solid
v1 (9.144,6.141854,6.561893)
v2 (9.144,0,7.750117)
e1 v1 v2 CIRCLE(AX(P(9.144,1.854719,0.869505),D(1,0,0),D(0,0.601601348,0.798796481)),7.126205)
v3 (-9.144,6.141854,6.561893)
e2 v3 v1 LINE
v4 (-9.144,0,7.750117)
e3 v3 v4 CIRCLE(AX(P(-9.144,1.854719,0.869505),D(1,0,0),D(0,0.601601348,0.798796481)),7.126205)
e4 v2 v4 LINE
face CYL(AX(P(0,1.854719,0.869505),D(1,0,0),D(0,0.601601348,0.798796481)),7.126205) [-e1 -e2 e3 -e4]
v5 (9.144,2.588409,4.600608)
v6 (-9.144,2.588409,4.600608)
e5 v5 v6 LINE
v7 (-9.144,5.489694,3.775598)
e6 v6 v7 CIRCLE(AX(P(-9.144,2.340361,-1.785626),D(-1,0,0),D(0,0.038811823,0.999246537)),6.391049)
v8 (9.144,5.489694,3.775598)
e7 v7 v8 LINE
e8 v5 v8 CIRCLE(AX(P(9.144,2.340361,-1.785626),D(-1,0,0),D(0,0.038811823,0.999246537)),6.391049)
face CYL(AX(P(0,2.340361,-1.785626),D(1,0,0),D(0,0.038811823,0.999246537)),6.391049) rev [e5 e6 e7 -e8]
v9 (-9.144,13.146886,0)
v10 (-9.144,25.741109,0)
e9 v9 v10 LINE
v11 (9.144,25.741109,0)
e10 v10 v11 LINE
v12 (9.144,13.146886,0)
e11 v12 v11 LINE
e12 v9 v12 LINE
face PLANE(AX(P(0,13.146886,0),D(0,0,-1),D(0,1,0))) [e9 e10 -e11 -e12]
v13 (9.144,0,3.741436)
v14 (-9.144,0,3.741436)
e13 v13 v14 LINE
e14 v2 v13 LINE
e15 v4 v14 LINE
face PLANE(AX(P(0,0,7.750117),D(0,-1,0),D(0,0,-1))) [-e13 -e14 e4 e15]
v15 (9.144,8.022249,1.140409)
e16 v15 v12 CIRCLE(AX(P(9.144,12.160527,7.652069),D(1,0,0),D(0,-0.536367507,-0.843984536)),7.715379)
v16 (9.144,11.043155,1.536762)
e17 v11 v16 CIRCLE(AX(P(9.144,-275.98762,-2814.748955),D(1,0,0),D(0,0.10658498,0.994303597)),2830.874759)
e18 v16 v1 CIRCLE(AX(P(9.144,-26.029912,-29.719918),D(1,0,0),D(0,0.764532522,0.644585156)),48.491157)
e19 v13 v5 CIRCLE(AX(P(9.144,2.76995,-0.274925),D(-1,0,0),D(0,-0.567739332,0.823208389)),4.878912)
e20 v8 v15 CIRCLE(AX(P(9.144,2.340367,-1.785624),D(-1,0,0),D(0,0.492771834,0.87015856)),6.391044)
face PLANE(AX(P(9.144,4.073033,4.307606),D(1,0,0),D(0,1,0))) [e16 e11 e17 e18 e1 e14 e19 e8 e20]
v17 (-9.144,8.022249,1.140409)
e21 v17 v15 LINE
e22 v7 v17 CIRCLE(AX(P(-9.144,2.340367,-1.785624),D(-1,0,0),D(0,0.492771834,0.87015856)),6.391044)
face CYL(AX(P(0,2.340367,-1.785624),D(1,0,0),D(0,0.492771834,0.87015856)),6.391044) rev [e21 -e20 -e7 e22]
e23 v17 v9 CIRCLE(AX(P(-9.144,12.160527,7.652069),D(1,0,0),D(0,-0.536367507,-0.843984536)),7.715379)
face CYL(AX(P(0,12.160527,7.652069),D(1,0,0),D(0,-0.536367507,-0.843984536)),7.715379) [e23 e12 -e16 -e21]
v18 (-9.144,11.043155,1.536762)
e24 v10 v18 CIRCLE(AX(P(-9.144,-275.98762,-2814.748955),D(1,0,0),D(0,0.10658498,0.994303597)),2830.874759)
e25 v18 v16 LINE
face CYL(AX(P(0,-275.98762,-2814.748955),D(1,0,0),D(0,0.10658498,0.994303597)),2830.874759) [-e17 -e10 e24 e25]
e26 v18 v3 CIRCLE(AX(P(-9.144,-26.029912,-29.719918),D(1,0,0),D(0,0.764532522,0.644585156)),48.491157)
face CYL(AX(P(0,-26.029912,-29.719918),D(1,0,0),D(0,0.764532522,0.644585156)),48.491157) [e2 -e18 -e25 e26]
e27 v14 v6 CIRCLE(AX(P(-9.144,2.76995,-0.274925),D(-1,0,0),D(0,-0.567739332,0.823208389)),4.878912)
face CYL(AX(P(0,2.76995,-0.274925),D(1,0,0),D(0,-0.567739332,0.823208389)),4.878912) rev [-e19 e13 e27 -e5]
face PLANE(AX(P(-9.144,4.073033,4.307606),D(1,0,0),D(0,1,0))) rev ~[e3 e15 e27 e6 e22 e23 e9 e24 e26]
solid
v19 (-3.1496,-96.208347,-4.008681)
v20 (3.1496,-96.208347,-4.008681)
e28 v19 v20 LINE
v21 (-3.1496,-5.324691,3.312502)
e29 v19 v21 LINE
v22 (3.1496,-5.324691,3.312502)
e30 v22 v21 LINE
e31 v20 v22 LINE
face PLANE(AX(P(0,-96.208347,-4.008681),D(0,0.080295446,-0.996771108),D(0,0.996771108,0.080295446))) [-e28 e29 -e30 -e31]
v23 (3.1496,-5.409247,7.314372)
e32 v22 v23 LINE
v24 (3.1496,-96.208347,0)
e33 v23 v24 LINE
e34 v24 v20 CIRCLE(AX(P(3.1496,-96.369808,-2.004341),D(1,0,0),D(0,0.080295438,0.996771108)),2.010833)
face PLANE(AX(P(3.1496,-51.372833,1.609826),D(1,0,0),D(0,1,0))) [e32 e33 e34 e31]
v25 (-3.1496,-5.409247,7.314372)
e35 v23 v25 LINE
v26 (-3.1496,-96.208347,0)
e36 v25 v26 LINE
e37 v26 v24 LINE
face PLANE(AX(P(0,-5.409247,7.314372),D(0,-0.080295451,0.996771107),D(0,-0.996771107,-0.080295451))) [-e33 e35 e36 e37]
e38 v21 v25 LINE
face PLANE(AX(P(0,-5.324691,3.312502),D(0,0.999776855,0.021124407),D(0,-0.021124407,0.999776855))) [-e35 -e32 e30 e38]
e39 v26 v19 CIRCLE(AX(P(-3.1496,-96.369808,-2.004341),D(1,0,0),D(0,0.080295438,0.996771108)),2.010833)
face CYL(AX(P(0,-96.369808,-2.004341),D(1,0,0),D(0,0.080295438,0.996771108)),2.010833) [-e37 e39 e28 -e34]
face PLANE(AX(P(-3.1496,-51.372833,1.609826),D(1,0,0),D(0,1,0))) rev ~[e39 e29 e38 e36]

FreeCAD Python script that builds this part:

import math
import FreeCAD as App
import Part
import Sketcher
from FreeCAD import Vector
Q = App.Units.Quantity

doc = App.newDocument("Part")
body = doc.addObject("PartDesign::Body", "Body")

# Sketch on YZ plane
sketch1 = body.newObject("Sketcher::SketchObject", "Sketch")
sketch1.AttachmentSupport = (doc.getObject("YZ_Plane"), [""])
sketch1.MapMode = "FlatFace"
sketch1.addGeometry(Part.LineSegment(Vector(-5.409247, 7.314372, 0), Vector(-96.208347, 0, 0)), False)
sketch1.addGeometry(Part.ArcOfCircle(Part.Circle(Vector(-96.369808, -2.004341, 0), Vector(0, 0, 1), 2.010833), math.radians(85.394452), math.radians(274.605548)), False)
sketch1.addGeometry(Part.LineSegment(Vector(-96.208347, -4.008681, 0), Vector(-5.324691, 3.312502, 0)), False)
sketch1.addGeometry(Part.LineSegment(Vector(-5.324691, 3.312502, 0), Vector(-5.409247, 7.314372, 0)), False)
sketch1.addConstraint(Sketcher.Constraint("Coincident", 0, 2, 1, 1))
sketch1.addConstraint(Sketcher.Constraint("Coincident", 1, 2, 2, 1))
sketch1.addConstraint(Sketcher.Constraint("Coincident", 2, 2, 3, 1))
sketch1.addConstraint(Sketcher.Constraint("Coincident", 3, 2, 0, 1))
sketch1.addConstraint(Sketcher.Constraint("PointOnObject", 0, 2, -1))
sketch1.addConstraint(Sketcher.Constraint("Radius", 1, Q("2.010833 mm")))
sketch1.addConstraint(Sketcher.Constraint("DistanceY", -1, 1, 2, 2, Q("3.312502 mm")))
sketch1.addConstraint(Sketcher.Constraint("DistanceX", 0, 2, 3, 2, Q("90.7991 mm")))
sketch1.addConstraint(Sketcher.Constraint("DistanceX", 1, 2, 3, 2, Q("90.7991 mm")))
sketch1.addConstraint(Sketcher.Constraint("Distance", 0, Q("91.09323 mm")))
sketch1.addConstraint(Sketcher.Constraint("Distance", 2, Q("91.17806 mm")))
sketch1.addConstraint(Sketcher.Constraint("DistanceY", 1, 3, -1, 1, Q("2.004341 mm")))
sketch1.addConstraint(Sketcher.Constraint("DistanceX", 2, 2, -1, 1, Q("5.324691 mm")))
pad1 = body.newObject("PartDesign::Pad", "Pad")
pad1.Profile = sketch1
pad1.Type = "TwoLengths"
pad1.Length = Q("0.124 in")
pad1.Length2 = Q("0.124 in")
body2 = doc.addObject("PartDesign::Body", "Body001")

# Sketch on YZ plane
sketch2 = body2.newObject("Sketcher::SketchObject", "Sketch001")
sketch2.AttachmentSupport = (doc.getObject("YZ_Plane001"), [""])
sketch2.MapMode = "FlatFace"
sketch2.addGeometry(Part.ArcOfCircle(Part.Circle(Vector(2.340361, -1.785626, 0), Vector(0, 0, 1), 6.391049), math.radians(60.477027), math.radians(87.775688)), False)
sketch2.addGeometry(Part.ArcOfCircle(Part.Circle(Vector(2.340367, -1.785624, 0), Vector(0, 0, 1), 6.391044), math.radians(27.247383), math.radians(60.47707)), False)
sketch2.addGeometry(Part.ArcOfCircle(Part.Circle(Vector(12.160527, 7.652069, 0), Vector(0, 0, 1), 7.715379), math.radians(-122.4367), math.radians(-82.655024)), False)
sketch2.addGeometry(Part.LineSegment(Vector(13.146886, 0, 0), Vector(25.741109, 0, 0)), False)
sketch2.addGeometry(Part.ArcOfCircle(Part.Circle(Vector(-275.98762, -2814.748955, 0), Vector(0, 0, 1), 2830.874759), math.radians(83.881508), math.radians(84.180611)), False)
sketch2.addGeometry(Part.ArcOfCircle(Part.Circle(Vector(-26.029912, -29.719918, 0), Vector(0, 0, 1), 48.491157), math.radians(40.134579), math.radians(48.435991)), False)
sketch2.addGeometry(Part.ArcOfCircle(Part.Circle(Vector(1.854719, 0.869505, 0), Vector(0, 0, 1), 7.126205), math.radians(53.015328), math.radians(105.085933)), False)
sketch2.addGeometry(Part.LineSegment(Vector(0, 7.750117, 0), Vector(0, 3.741436, 0)), False)
sketch2.addGeometry(Part.ArcOfCircle(Part.Circle(Vector(2.76995, -0.274925, 0), Vector(0, 0, 1), 4.878912), math.radians(92.132431), math.radians(124.592732)), False)
sketch2.addConstraint(Sketcher.Constraint("Coincident", 0, 1, 1, 2))
sketch2.addConstraint(Sketcher.Constraint("Coincident", 1, 1, 2, 1))
sketch2.addConstraint(Sketcher.Constraint("Coincident", 2, 2, 3, 1))
sketch2.addConstraint(Sketcher.Constraint("Coincident", 3, 2, 4, 1))
sketch2.addConstraint(Sketcher.Constraint("Coincident", 4, 2, 5, 1))
sketch2.addConstraint(Sketcher.Constraint("Coincident", 5, 2, 6, 1))
sketch2.addConstraint(Sketcher.Constraint("Coincident", 6, 2, 7, 1))
sketch2.addConstraint(Sketcher.Constraint("Coincident", 7, 2, 8, 2))
sketch2.addConstraint(Sketcher.Constraint("Coincident", 8, 1, 0, 2))
sketch2.addConstraint(Sketcher.Constraint("Horizontal", 3))
sketch2.addConstraint(Sketcher.Constraint("Vertical", 7))
sketch2.addConstraint(Sketcher.Constraint("Coincident", 1, 3, 0, 3))
sketch2.addConstraint(Sketcher.Constraint("PointOnObject", 2, 2, -1))
sketch2.addConstraint(Sketcher.Constraint("PointOnObject", 6, 2, -2))
sketch2.addConstraint(Sketcher.Constraint("Radius", 0, Q("6.391049 mm")))
sketch2.addConstraint(Sketcher.Constraint("Radius", 2, Q("7.715379 mm")))
sketch2.addConstraint(Sketcher.Constraint("Radius", 4, Q("2830.874759 mm")))
sketch2.addConstraint(Sketcher.Constraint("Radius", 8, Q("4.878912 mm")))
sketch2.addConstraint(Sketcher.Constraint("DistanceY", 1, 3, -1, 1, Q("0.0703002 in")))
sketch2.addConstraint(Sketcher.Constraint("Radius", 5, Q("48.491157 mm")))
sketch2.addConstraint(Sketcher.Constraint("Radius", 6, Q("7.126205 mm")))
sketch2.addConstraint(Sketcher.Constraint("DistanceX", 0, 1, 3, 2, Q("0.7972998 in")))
sketch2.addConstraint(Sketcher.Constraint("DistanceY", 7, 2, 7, 1, Q("4.008681 mm")))
sketch2.addConstraint(Sketcher.Constraint("DistanceY", -1, 1, 0, 1, Q("3.775598 mm")))
sketch2.addConstraint(Sketcher.Constraint("DistanceY", 1, 3, 8, 3, Q("1.510699 mm")))
sketch2.addConstraint(Sketcher.Constraint("DistanceX", 8, 3, 1, 1, Q("5.252299 mm")))
sketch2.addConstraint(Sketcher.Constraint("DistanceX", 3, 1, 3, 2, Q("12.594223 mm")))
sketch2.addConstraint(Sketcher.Constraint("DistanceX", -1, 1, 0, 3, Q("2.340361 mm")))
sketch2.addConstraint(Sketcher.Constraint("DistanceY", -1, 1, 2, 3, Q("7.652069 mm")))
sketch2.addConstraint(Sketcher.Constraint("DistanceX", 4, 3, -1, 1, Q("275.98762 mm")))
sketch2.addConstraint(Sketcher.Constraint("DistanceX", 5, 3, -1, 1, Q("26.029912 mm")))
sketch2.addConstraint(Sketcher.Constraint("DistanceY", 5, 3, -1, 1, Q("29.719918 mm")))
sketch2.addConstraint(Sketcher.Constraint("DistanceX", -1, 1, 6, 3, Q("1.854719 mm")))
pad2 = body2.newObject("PartDesign::Pad", "Pad001")
pad2.Profile = sketch2
pad2.Type = "TwoLengths"
pad2.Length = Q("0.36 in")
pad2.Length2 = Q("0.36 in")

doc.recompute()
